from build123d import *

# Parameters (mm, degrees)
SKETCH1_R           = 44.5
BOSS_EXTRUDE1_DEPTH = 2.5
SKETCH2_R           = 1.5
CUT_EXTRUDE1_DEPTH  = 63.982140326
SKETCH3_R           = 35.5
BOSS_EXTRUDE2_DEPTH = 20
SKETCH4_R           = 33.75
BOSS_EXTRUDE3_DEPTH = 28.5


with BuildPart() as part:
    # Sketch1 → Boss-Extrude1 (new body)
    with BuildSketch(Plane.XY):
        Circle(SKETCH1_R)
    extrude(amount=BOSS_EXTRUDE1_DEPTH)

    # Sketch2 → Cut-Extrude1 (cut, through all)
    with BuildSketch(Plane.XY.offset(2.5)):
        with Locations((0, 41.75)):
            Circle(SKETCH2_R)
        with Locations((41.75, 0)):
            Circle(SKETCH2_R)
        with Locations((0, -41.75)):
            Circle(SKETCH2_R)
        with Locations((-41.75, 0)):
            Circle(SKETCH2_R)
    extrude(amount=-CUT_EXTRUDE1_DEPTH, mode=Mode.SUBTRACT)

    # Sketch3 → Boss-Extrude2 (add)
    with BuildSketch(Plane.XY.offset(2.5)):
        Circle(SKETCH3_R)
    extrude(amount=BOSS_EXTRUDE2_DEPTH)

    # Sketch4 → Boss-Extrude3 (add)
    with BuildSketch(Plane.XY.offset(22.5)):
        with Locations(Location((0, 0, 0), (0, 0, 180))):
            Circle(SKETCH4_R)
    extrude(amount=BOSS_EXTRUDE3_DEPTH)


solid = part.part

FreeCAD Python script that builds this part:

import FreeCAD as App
import Part
import Sketcher
from FreeCAD import Vector

doc = App.newDocument("Part")
body = doc.addObject("PartDesign::Body", "Body")

# Sketch on XY plane
sketch1 = doc.addObject("Sketcher::SketchObject", "Sketch")
body.addObject(sketch1)
sketch1.AttachmentSupport = (doc.XY_Plane, [""])
sketch1.MapMode = "FlatFace"
sketch1.addGeometry(Part.Circle(Vector(0, 0, 0), Vector(0, 0, 1), 44), False)
sketch1.addConstraint(Sketcher.Constraint("Coincident", 0, 3, -1, 1))
sketch1.addConstraint(Sketcher.Constraint("Diameter", 0, 89.0))
pad1 = doc.addObject("PartDesign::Pad", "Pad")
body.addObject(pad1)
pad1.Profile = sketch1
pad1.Length = 2.5

# Sketch on XY plane
sketch2 = doc.addObject("Sketcher::SketchObject", "Sketch001")
body.addObject(sketch2)
sketch2.AttachmentSupport = (doc.XY_Plane, [""])
sketch2.MapMode = "FlatFace"
sketch2.AttachmentOffset = App.Placement(Vector(0, 0, 2.5), App.Rotation())
sketch2.addGeometry(Part.Circle(Vector(0, 41.8, 0), Vector(0, 0, 1), 1.5), False)
sketch2.addGeometry(Part.Circle(Vector(41.8, 0, 0), Vector(0, 0, 1), 1.5), False)
sketch2.addGeometry(Part.Circle(Vector(0, -41.8, 0), Vector(0, 0, 1), 1.5), False)
sketch2.addGeometry(Part.Circle(Vector(-41.8, 0, 0), Vector(0, 0, 1), 1.5), False)
sketch2.addConstraint(Sketcher.Constraint("Equal", 0, 1))
sketch2.addConstraint(Sketcher.Constraint("Equal", 1, 2))
sketch2.addConstraint(Sketcher.Constraint("Equal", 2, 3))
sketch2.addConstraint(Sketcher.Constraint("Symmetric", 0, 3, 2, 3, -1, 1))
sketch2.addConstraint(Sketcher.Constraint("Symmetric", 1, 3, 3, 3, -1, 1))
sketch2.addConstraint(Sketcher.Constraint("PointOnObject", 0, 3, -2))
sketch2.addConstraint(Sketcher.Constraint("PointOnObject", 1, 3, -1))
sketch2.addConstraint(Sketcher.Constraint("Diameter", 0, 3.0))
sketch2.addConstraint(Sketcher.Constraint("DistanceY", 2, 3, 0, 3, 83.5))
sketch2.addConstraint(Sketcher.Constraint("DistanceX", 3, 3, 1, 3, 83.5))
pocket1 = doc.addObject("PartDesign::Pocket", "Pocket")
body.addObject(pocket1)
pocket1.Profile = sketch2
pocket1.Type = "ThroughAll"

# Sketch on XY plane
sketch3 = doc.addObject("Sketcher::SketchObject", "Sketch002")
body.addObject(sketch3)
sketch3.AttachmentSupport = (doc.XY_Plane, [""])
sketch3.MapMode = "FlatFace"
sketch3.AttachmentOffset = App.Placement(Vector(0, 0, 2.5), App.Rotation())
sketch3.addGeometry(Part.Circle(Vector(0, 0, 0), Vector(0, 0, 1), 36), False)
sketch3.addConstraint(Sketcher.Constraint("Coincident", 0, 3, -1, 1))
sketch3.addConstraint(Sketcher.Constraint("Diameter", 0, 71.0))
pad2 = doc.addObject("PartDesign::Pad", "Pad001")
body.addObject(pad2)
pad2.Profile = sketch3
pad2.Length = 20

# Sketch on XY plane
sketch4 = doc.addObject("Sketcher::SketchObject", "Sketch003")
body.addObject(sketch4)
sketch4.AttachmentSupport = (doc.XY_Plane, [""])
sketch4.MapMode = "FlatFace"
sketch4.AttachmentOffset = App.Placement(Vector(0, 0, 22.5), App.Rotation())
sketch4.addGeometry(Part.Circle(Vector(0, 0, 0), Vector(0, 0, 1), 34), False)
sketch4.addConstraint(Sketcher.Constraint("Coincident", 0, 3, -1, 1))
sketch4.addConstraint(Sketcher.Constraint("Diameter", 0, 67.5))
pad3 = doc.addObject("PartDesign::Pad", "Pad002")
body.addObject(pad3)
pad3.Profile = sketch4
pad3.Length = 28.5

doc.recompute()
